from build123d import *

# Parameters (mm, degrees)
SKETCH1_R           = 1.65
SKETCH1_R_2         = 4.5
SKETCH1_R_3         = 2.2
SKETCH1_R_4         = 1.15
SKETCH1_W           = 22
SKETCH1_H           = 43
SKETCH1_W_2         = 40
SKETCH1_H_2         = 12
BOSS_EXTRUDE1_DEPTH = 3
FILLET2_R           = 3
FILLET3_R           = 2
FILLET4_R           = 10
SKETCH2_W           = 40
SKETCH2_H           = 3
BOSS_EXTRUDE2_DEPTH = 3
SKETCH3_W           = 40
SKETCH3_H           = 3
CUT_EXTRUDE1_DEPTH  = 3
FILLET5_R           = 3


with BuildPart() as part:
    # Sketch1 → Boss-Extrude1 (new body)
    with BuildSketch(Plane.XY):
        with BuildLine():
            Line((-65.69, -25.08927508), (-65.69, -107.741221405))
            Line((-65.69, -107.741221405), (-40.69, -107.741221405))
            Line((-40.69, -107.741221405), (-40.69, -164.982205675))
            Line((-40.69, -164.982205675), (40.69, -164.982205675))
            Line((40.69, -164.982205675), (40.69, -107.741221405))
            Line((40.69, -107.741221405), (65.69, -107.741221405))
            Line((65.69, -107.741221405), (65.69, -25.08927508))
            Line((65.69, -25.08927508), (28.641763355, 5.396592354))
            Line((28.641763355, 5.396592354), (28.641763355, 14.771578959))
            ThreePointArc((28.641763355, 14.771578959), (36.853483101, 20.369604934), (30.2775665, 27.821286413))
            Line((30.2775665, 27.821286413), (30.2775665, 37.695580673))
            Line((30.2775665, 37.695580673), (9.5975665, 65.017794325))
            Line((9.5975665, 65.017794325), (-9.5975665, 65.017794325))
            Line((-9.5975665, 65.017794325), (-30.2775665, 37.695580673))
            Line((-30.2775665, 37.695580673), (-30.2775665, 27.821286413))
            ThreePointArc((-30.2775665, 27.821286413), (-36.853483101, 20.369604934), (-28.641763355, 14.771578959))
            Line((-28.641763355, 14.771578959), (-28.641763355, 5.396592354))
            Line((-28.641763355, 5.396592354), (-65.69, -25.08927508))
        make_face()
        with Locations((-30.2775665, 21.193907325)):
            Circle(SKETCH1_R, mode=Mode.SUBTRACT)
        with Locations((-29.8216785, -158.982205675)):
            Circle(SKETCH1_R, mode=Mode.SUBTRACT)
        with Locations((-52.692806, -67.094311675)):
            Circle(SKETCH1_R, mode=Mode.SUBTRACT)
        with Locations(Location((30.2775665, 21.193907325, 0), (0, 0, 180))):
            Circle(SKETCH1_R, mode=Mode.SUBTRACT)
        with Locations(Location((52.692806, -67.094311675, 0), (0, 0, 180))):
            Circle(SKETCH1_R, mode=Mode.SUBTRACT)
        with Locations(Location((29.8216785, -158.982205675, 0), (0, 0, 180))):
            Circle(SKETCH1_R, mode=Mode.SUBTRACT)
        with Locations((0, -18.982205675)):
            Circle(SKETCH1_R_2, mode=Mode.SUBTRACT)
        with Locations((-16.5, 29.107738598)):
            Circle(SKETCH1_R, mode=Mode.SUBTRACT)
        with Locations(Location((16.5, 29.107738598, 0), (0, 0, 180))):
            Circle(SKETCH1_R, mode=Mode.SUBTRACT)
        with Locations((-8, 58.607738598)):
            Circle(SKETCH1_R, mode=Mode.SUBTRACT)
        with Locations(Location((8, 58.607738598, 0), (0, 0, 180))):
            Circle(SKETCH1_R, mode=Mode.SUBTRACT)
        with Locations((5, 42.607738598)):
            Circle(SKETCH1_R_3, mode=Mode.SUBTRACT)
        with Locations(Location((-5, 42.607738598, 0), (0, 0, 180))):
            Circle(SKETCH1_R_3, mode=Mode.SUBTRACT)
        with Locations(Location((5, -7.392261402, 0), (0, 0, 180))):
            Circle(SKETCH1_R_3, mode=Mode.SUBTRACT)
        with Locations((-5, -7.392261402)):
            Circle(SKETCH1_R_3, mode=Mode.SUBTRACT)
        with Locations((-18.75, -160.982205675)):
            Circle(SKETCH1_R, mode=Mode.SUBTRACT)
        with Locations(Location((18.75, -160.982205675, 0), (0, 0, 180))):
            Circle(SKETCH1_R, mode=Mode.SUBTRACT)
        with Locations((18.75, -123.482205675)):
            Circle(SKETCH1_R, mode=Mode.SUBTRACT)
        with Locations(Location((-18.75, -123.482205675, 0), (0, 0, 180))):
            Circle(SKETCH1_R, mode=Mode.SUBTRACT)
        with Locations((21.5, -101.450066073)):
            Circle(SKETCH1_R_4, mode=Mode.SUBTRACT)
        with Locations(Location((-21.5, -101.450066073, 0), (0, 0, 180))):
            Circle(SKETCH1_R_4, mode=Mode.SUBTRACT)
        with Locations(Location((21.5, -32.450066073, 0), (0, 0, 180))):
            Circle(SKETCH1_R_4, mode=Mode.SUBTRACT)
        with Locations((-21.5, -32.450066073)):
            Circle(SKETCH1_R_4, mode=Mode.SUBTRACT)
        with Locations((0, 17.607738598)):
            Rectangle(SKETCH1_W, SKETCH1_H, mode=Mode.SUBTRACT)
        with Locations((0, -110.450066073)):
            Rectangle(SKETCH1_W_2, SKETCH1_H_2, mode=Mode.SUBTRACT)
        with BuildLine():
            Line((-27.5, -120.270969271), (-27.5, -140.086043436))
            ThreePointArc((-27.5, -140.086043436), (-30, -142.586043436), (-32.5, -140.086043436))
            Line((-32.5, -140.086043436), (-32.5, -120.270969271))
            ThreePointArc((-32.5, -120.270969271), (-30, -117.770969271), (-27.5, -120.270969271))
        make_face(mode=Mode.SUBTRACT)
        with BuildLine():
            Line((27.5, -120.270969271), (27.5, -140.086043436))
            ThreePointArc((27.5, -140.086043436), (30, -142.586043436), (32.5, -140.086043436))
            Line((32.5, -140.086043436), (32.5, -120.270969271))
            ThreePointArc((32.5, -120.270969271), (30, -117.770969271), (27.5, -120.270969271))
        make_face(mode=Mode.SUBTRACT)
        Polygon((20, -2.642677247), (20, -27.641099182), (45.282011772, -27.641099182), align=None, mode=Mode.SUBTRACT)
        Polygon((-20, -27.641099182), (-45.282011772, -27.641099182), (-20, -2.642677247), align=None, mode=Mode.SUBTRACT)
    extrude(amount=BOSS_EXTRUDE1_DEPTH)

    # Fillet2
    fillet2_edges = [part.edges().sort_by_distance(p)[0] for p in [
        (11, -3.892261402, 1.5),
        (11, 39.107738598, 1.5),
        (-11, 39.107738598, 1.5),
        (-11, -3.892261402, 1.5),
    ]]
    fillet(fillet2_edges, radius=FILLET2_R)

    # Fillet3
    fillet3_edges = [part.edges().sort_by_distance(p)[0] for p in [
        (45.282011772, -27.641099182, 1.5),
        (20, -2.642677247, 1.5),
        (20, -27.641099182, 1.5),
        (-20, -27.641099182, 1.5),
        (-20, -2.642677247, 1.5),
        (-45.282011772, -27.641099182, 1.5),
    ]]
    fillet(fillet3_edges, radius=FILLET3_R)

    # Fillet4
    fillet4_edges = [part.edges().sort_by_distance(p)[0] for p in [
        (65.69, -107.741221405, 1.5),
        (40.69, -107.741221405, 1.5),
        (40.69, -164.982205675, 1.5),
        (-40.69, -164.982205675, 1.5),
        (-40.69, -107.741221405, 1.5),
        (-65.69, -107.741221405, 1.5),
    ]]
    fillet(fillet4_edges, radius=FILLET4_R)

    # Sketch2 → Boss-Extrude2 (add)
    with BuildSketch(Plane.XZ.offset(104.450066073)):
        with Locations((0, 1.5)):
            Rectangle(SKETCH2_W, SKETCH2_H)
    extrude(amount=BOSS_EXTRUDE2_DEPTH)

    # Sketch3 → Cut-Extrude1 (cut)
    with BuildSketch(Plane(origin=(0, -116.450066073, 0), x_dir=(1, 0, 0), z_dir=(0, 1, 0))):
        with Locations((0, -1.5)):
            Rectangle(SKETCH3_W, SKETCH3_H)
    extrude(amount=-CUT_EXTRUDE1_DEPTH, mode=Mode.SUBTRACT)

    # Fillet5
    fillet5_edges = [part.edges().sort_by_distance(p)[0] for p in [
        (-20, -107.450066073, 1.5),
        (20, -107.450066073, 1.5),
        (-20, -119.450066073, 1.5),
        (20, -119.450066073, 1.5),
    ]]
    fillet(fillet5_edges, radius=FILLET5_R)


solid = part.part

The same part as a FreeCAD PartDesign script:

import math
import FreeCAD as App
import Part
import Sketcher
from FreeCAD import Vector
Q = App.Units.Quantity


def edges_at(feature, points):
    """Names of the edges that pass closest to the given points."""
    edges = feature.Shape.Edges
    near = lambda p: min(range(len(edges)), key=lambda i: edges[i].distToShape(Part.Vertex(*p))[0])
    return sorted({f"Edge{near(p) + 1}" for p in points})


def add_polygon(sketch, points):
    """Adds a closed chain of lines whose ends are joined by coincident constraints."""
    first, n = sketch.GeometryCount, len(points)
    for a, b in zip(points, points[1:] + points[:1]):
        sketch.addGeometry(Part.LineSegment(App.Vector(*a, 0), App.Vector(*b, 0)), False)
    for i in range(n):
        sketch.addConstraint(Sketcher.Constraint("Coincident", first + i, 2, first + (i + 1) % n, 1))

doc = App.newDocument("Part")
body = doc.addObject("PartDesign::Body", "Body")

# Sketch on XY plane
sketch1 = body.newObject("Sketcher::SketchObject", "Sketch")
sketch1.AttachmentSupport = (doc.getObject("XY_Plane"), [""])
sketch1.MapMode = "FlatFace"
sketch1.addGeometry(Part.LineSegment(Vector(-65.7, -25.1, 0), Vector(-65.7, -107.7, 0)), False)  # 0
sketch1.addGeometry(Part.LineSegment(Vector(-65.7, -107.7, 0), Vector(-40.7, -107.7, 0)), False)  # 1
sketch1.addGeometry(Part.LineSegment(Vector(-40.7, -107.7, 0), Vector(-40.7, -165, 0)), False)  # 2
sketch1.addGeometry(Part.LineSegment(Vector(-40.7, -165, 0), Vector(40.7, -165, 0)), False)  # 3
sketch1.addGeometry(Part.LineSegment(Vector(40.7, -165, 0), Vector(40.7, -107.7, 0)), False)  # 4
sketch1.addGeometry(Part.LineSegment(Vector(40.7, -107.7, 0), Vector(65.7, -107.7, 0)), False)  # 5
sketch1.addGeometry(Part.LineSegment(Vector(65.7, -107.7, 0), Vector(65.7, -25.1, 0)), False)  # 6
sketch1.addGeometry(Part.LineSegment(Vector(65.7, -25.1, 0), Vector(28.6, 5.4, 0)), False)  # 7
sketch1.addGeometry(Part.LineSegment(Vector(28.6, 5.4, 0), Vector(28.6, 14.8, 0)), False)  # 8
sketch1.addGeometry(Part.ArcOfCircle(Part.Circle(Vector(30.3, 21.2, 0), Vector(0, 0, 1), 6.6), math.radians(-104), math.radians(90)), False)  # 9
sketch1.addGeometry(Part.LineSegment(Vector(30.3, 27.8, 0), Vector(30.3, 37.7, 0)), False)  # 10
sketch1.addGeometry(Part.LineSegment(Vector(30.3, 37.7, 0), Vector(9.6, 65, 0)), False)  # 11
sketch1.addGeometry(Part.LineSegment(Vector(9.6, 65, 0), Vector(-9.6, 65, 0)), False)  # 12
sketch1.addGeometry(Part.LineSegment(Vector(-9.6, 65, 0), Vector(-30.3, 37.7, 0)), False)  # 13
sketch1.addGeometry(Part.LineSegment(Vector(-30.3, 37.7, 0), Vector(-30.3, 27.8, 0)), False)  # 14
sketch1.addGeometry(Part.ArcOfCircle(Part.Circle(Vector(-30.3, 21.2, 0), Vector(0, 0, 1), 6.6), math.radians(90), math.radians(284)), False)  # 15
sketch1.addGeometry(Part.LineSegment(Vector(-28.6, 14.8, 0), Vector(-28.6, 5.4, 0)), False)  # 16
sketch1.addGeometry(Part.LineSegment(Vector(-28.6, 5.4, 0), Vector(-65.7, -25.1, 0)), False)  # 17
sketch1.addGeometry(Part.Circle(Vector(-29.8, -159, 0), Vector(0, 0, 1), 1.6), False)  # 18
sketch1.addGeometry(Part.ArcOfCircle(Part.Circle(Vector(-30, -120.3, 0), Vector(0, 0, 1), 2.5), math.radians(0), math.radians(180)), False)  # 19
sketch1.addGeometry(Part.LineSegment(Vector(-27.5, -120.3, 0), Vector(-27.5, -140.1, 0)), False)  # 20
sketch1.addGeometry(Part.ArcOfCircle(Part.Circle(Vector(-30, -140.1, 0), Vector(0, 0, 1), 2.5), math.radians(180), math.radians(360)), False)  # 21
sketch1.addGeometry(Part.LineSegment(Vector(-32.5, -140.1, 0), Vector(-32.5, -120.3, 0)), False)  # 22
sketch1.addGeometry(Part.Circle(Vector(-18.8, -161, 0), Vector(0, 0, 1), 1.6), False)  # 23
sketch1.addGeometry(Part.Circle(Vector(-18.8, -123.5, 0), Vector(0, 0, 1), 1.6), False)  # 24
sketch1.addGeometry(Part.Circle(Vector(-52.7, -67.1, 0), Vector(0, 0, 1), 1.6), False)  # 25
sketch1.addGeometry(Part.Circle(Vector(-21.5, -101.5, 0), Vector(0, 0, 1), 1.1), False)  # 26
sketch1.addGeometry(Part.Circle(Vector(18.8, -161, 0), Vector(0, 0, 1), 1.6), False)  # 27
add_polygon(sketch1, [(20, -116.5), (-20, -116.5), (-20, -104.5), (20, -104.5)])  # lines 28-31
sketch1.addGeometry(Part.Circle(Vector(18.8, -123.5, 0), Vector(0, 0, 1), 1.6), False)  # 32
sketch1.addGeometry(Part.Circle(Vector(29.8, -159, 0), Vector(0, 0, 1), 1.6), False)  # 33
sketch1.addGeometry(Part.LineSegment(Vector(27.5, -140.1, 0), Vector(27.5, -120.3, 0)), False)  # 34
sketch1.addGeometry(Part.ArcOfCircle(Part.Circle(Vector(30, -120.3, 0), Vector(0, 0, 1), 2.5), math.radians(0), math.radians(180)), False)  # 35
sketch1.addGeometry(Part.LineSegment(Vector(32.5, -120.3, 0), Vector(32.5, -140.1, 0)), False)  # 36
sketch1.addGeometry(Part.ArcOfCircle(Part.Circle(Vector(30, -140.1, 0), Vector(0, 0, 1), 2.5), math.radians(180), math.radians(360)), False)  # 37
sketch1.addGeometry(Part.Circle(Vector(21.5, -101.5, 0), Vector(0, 0, 1), 1.1), False)  # 38
sketch1.addGeometry(Part.Circle(Vector(52.7, -67.1, 0), Vector(0, 0, 1), 1.6), False)  # 39
add_polygon(sketch1, [(-20, -2.6), (-20, -27.6), (-45.3, -27.6)])  # lines 40-42
sketch1.addGeometry(Part.Circle(Vector(-21.5, -32.5, 0), Vector(0, 0, 1), 1.1), False)  # 43
sketch1.addGeometry(Part.Circle(Vector(-5, -7.4, 0), Vector(0, 0, 1), 2.2), False)  # 44
sketch1.addGeometry(Part.Circle(Vector(-30.3, 21.2, 0), Vector(0, 0, 1), 1.6), False)  # 45
sketch1.addGeometry(Part.Circle(Vector(-16.5, 29.1, 0), Vector(0, 0, 1), 1.6), False)  # 46
sketch1.addGeometry(Part.Circle(Vector(-5, 42.6, 0), Vector(0, 0, 1), 2.2), False)  # 47
sketch1.addGeometry(Part.Circle(Vector(-8, 58.6, 0), Vector(0, 0, 1), 1.6), False)  # 48
sketch1.addGeometry(Part.Circle(Vector(21.5, -32.5, 0), Vector(0, 0, 1), 1.1), False)  # 49
sketch1.addGeometry(Part.Circle(Vector(0, -19, 0), Vector(0, 0, 1), 4.5), False)  # 50
sketch1.addGeometry(Part.Circle(Vector(5, -7.4, 0), Vector(0, 0, 1), 2.2), False)  # 51
add_polygon(sketch1, [(20, -27.6), (20, -2.6), (45.3, -27.6)])  # lines 52-54
add_polygon(sketch1, [(11, -3.9), (-11, -3.9), (-11, 39.1), (11, 39.1)])  # lines 55-58
sketch1.addGeometry(Part.Circle(Vector(16.5, 29.1, 0), Vector(0, 0, 1), 1.6), False)  # 59
sketch1.addGeometry(Part.Circle(Vector(5, 42.6, 0), Vector(0, 0, 1), 2.2), False)  # 60
sketch1.addGeometry(Part.Circle(Vector(8, 58.6, 0), Vector(0, 0, 1), 1.6), False)  # 61
sketch1.addGeometry(Part.Circle(Vector(30.3, 21.2, 0), Vector(0, 0, 1), 1.6), False)  # 62
sketch1.addConstraint([
    Sketcher.Constraint("Coincident", 0, 2, 1, 1),
    Sketcher.Constraint("Coincident", 1, 2, 2, 1),
    Sketcher.Constraint("Coincident", 2, 2, 3, 1),
    Sketcher.Constraint("Coincident", 3, 2, 4, 1),
    Sketcher.Constraint("Coincident", 4, 2, 5, 1),
    Sketcher.Constraint("Coincident", 5, 2, 6, 1),
    Sketcher.Constraint("Coincident", 6, 2, 7, 1),
    Sketcher.Constraint("Coincident", 7, 2, 8, 1),
    Sketcher.Constraint("Coincident", 8, 2, 9, 1),
    Sketcher.Constraint("Coincident", 9, 2, 10, 1),
    Sketcher.Constraint("Coincident", 10, 2, 11, 1),
    Sketcher.Constraint("Coincident", 11, 2, 12, 1),
    Sketcher.Constraint("Coincident", 12, 2, 13, 1),
    Sketcher.Constraint("Coincident", 13, 2, 14, 1),
    Sketcher.Constraint("Coincident", 14, 2, 15, 1),
    Sketcher.Constraint("Coincident", 15, 2, 16, 1),
    Sketcher.Constraint("Coincident", 16, 2, 17, 1),
    Sketcher.Constraint("Coincident", 17, 2, 0, 1),
    Sketcher.Constraint("Tangent", 19, 1, 20, 1),
    Sketcher.Constraint("Tangent", 20, 2, 21, 2),
    Sketcher.Constraint("Tangent", 21, 1, 22, 1),
    Sketcher.Constraint("Tangent", 22, 2, 19, 2),
    Sketcher.Constraint("Tangent", 34, 2, 35, 2),
    Sketcher.Constraint("Tangent", 35, 1, 36, 1),
    Sketcher.Constraint("Tangent", 36, 2, 37, 2),
    Sketcher.Constraint("Tangent", 37, 1, 34, 1),
    Sketcher.Constraint("Vertical", 0),
    Sketcher.Constraint("Horizontal", 1),
    Sketcher.Constraint("Vertical", 2),
    Sketcher.Constraint("Horizontal", 3),
    Sketcher.Constraint("Vertical", 4),
    Sketcher.Constraint("Horizontal", 5),
    Sketcher.Constraint("Vertical", 6),
    Sketcher.Constraint("Vertical", 8),
    Sketcher.Constraint("Vertical", 10),
    Sketcher.Constraint("Horizontal", 12),
    Sketcher.Constraint("Vertical", 14),
    Sketcher.Constraint("Vertical", 16),
    Sketcher.Constraint("Vertical", 20),
    Sketcher.Constraint("Vertical", 22),
    Sketcher.Constraint("Horizontal", 28),
    Sketcher.Constraint("Vertical", 29),
    Sketcher.Constraint("Horizontal", 30),
    Sketcher.Constraint("Vertical", 31),
    Sketcher.Constraint("Vertical", 34),
    Sketcher.Constraint("Vertical", 36),
    Sketcher.Constraint("Vertical", 40),
    Sketcher.Constraint("Horizontal", 41),
    Sketcher.Constraint("Vertical", 52),
    Sketcher.Constraint("Horizontal", 54),
    Sketcher.Constraint("Horizontal", 55),
    Sketcher.Constraint("Vertical", 56),
    Sketcher.Constraint("Horizontal", 57),
    Sketcher.Constraint("Vertical", 58),
    Sketcher.Constraint("Coincident", 45, 3, 15, 3),
    Sketcher.Constraint("Coincident", 62, 3, 9, 3),
    Sketcher.Constraint("Equal", 9, 15),
    Sketcher.Constraint("Equal", 18, 23),
    Sketcher.Constraint("Equal", 23, 24),
    Sketcher.Constraint("Equal", 24, 25),
    Sketcher.Constraint("Equal", 25, 27),
    Sketcher.Constraint("Equal", 27, 32),
    Sketcher.Constraint("Equal", 32, 33),
    Sketcher.Constraint("Equal", 21, 35),
    Sketcher.Constraint("Equal", 26, 38),
    Sketcher.Constraint("Equal", 33, 39),
    Sketcher.Constraint("Equal", 38, 43),
    Sketcher.Constraint("Equal", 39, 45),
    Sketcher.Constraint("Equal", 45, 46),
    Sketcher.Constraint("Equal", 44, 47),
    Sketcher.Constraint("Equal", 46, 48),
    Sketcher.Constraint("Equal", 43, 49),
    Sketcher.Constraint("Equal", 47, 51),
    Sketcher.Constraint("Equal", 48, 59),
    Sketcher.Constraint("Equal", 51, 60),
    Sketcher.Constraint("Equal", 59, 61),
    Sketcher.Constraint("Equal", 61, 62),
    Sketcher.Constraint("Symmetric", 9, 3, 15, 3, -2),
    Sketcher.Constraint("Symmetric", 23, 3, 27, 3, -2),
    Sketcher.Constraint("Symmetric", 24, 3, 32, 3, -2),
    Sketcher.Constraint("Symmetric", 18, 3, 33, 3, -2),
    Sketcher.Constraint("Symmetric", 19, 3, 35, 3, -2),
    Sketcher.Constraint("Symmetric", 26, 3, 38, 3, -2),
    Sketcher.Constraint("Symmetric", 25, 3, 39, 3, -2),
    Sketcher.Constraint("Symmetric", 43, 3, 49, 3, -2),
    Sketcher.Constraint("Symmetric", 44, 3, 51, 3, -2),
    Sketcher.Constraint("Symmetric", 46, 3, 59, 3, -2),
    Sketcher.Constraint("Symmetric", 47, 3, 60, 3, -2),
    Sketcher.Constraint("Symmetric", 48, 3, 61, 3, -2),
    Sketcher.Constraint("Symmetric", 1, 2, 4, 2, -2),
    Sketcher.Constraint("Symmetric", 10, 2, 13, 2, -2),
    Sketcher.Constraint("Symmetric", 7, 2, 16, 2, -2),
    Sketcher.Constraint("Symmetric", 6, 2, 17, 2, -2),
    Sketcher.Constraint("Symmetric", 42, 2, 52, 2, -2),
    Sketcher.Constraint("Symmetric", 41, 2, 53, 2, -2),
    Sketcher.Constraint("PointOnObject", 50, 3, -2),
    Sketcher.Constraint("Horizontal", 21, 3, 37, 3),
    Sketcher.Constraint("Vertical", 23, 3, 24, 3),
    Sketcher.Constraint("Vertical", 26, 3, 43, 3),
    Sketcher.Constraint("Vertical", 44, 3, 47, 3),
    Sketcher.Constraint("Vertical", 62, 3, 9, 2),
    Sketcher.Constraint("Vertical", 29, 2, 40, 2),
    Sketcher.Constraint("Vertical", 31, 2, 52, 2),
    Sketcher.Constraint("Equal", 11, 13),
    Sketcher.Constraint("Diameter", 50, Q("9 mm")),
    Sketcher.Constraint("Diameter", 18, Q("3.3 mm")),
    Sketcher.Constraint("Diameter", 26, Q("2.3 mm")),
    Sketcher.Constraint("Diameter", 44, Q("4.4 mm")),
    Sketcher.Constraint("Radius", 19, Q("2.5 mm")),
    Sketcher.Constraint("DistanceX", 1, 1, 1, 2, Q("25 mm")),
    Sketcher.Constraint("DistanceX", 28, 2, 28, 1, Q("40 mm")),
    Sketcher.Constraint("DistanceX", 55, 2, 55, 1, Q("22 mm")),
    Sketcher.Constraint("DistanceY", 29, 1, 29, 2, Q("12 mm")),
    Sketcher.Constraint("DistanceY", 56, 1, 56, 2, Q("43 mm")),
    Sketcher.Constraint("DistanceX", 19, 3, -1, 1, Q("30 mm")),
    Sketcher.Constraint("DistanceX", 44, 3, -1, 1, Q("5 mm")),
    Sketcher.Constraint("DistanceX", 48, 3, -1, 1, Q("8 mm")),
    Sketcher.Constraint("DistanceX", 55, 2, -1, 1, Q("11 mm")),
    Sketcher.Constraint("DistanceX", 3, 1, 3, 2, Q("81.38 mm")),
    Sketcher.Constraint("DistanceX", 26, 3, -1, 1, Q("21.5 mm")),
    Sketcher.Constraint("DistanceX", 46, 3, -1, 1, Q("16.5 mm")),
    Sketcher.Constraint("DistanceX", 23, 3, -1, 1, Q("18.75 mm")),
    Sketcher.Constraint("Radius", 9, Q("6.627379 mm")),
    Sketcher.Constraint("Distance", 42, Q("35.554201 mm")),
    Sketcher.Constraint("DistanceX", 41, 2, 41, 1, Q("25.282012 mm")),
    Sketcher.Constraint("DistanceY", 40, 2, -1, 1, Q("27.641099 mm")),
    Sketcher.Constraint("DistanceX", 12, 2, 12, 1, Q("19.195133 mm")),
    Sketcher.Constraint("DistanceY", 0, 2, 0, 1, Q("82.651946 mm")),
    Sketcher.Constraint("DistanceY", 2, 2, 2, 1, Q("57.240984 mm")),
    Sketcher.Constraint("DistanceY", 8, 1, 8, 2, Q("9.374987 mm")),
    Sketcher.Constraint("DistanceY", 10, 1, 10, 2, Q("9.874294 mm")),
    Sketcher.Constraint("DistanceY", 20, 2, 20, 1, Q("19.815074 mm")),
    Sketcher.Constraint("DistanceX", 18, 3, -1, 1, Q("29.821679 mm")),
    Sketcher.Constraint("DistanceY", 19, 3, -1, 1, Q("120.270969 mm")),
    Sketcher.Constraint("DistanceY", 25, 3, -1, 1, Q("67.094312 mm")),
    Sketcher.Constraint("DistanceY", 44, 3, -1, 1, Q("7.392261 mm")),
    Sketcher.Constraint("DistanceY", -1, 1, 46, 3, Q("29.107739 mm")),
    Sketcher.Constraint("DistanceY", -1, 1, 47, 3, Q("42.607739 mm")),
    Sketcher.Constraint("DistanceY", -1, 1, 48, 3, Q("58.607739 mm")),
    Sketcher.Constraint("DistanceY", 0, 2, -1, 1, Q("107.741221 mm")),
    Sketcher.Constraint("DistanceY", -1, 1, 8, 2, Q("14.771579 mm")),
    Sketcher.Constraint("DistanceY", -1, 1, 10, 2, Q("37.695581 mm")),
    Sketcher.Constraint("DistanceY", 55, 2, -1, 1, Q("3.892261 mm")),
    Sketcher.Constraint("Distance", 7, Q("47.978745 mm")),
    Sketcher.Constraint("Distance", 11, Q("34.266102 mm")),
    Sketcher.Constraint("DistanceY", 18, 3, -1, 1, Q("158.982206 mm")),
    Sketcher.Constraint("DistanceY", 23, 3, -1, 1, Q("160.982206 mm")),
    Sketcher.Constraint("DistanceY", 24, 3, -1, 1, Q("123.482206 mm")),
    Sketcher.Constraint("DistanceX", 25, 3, -1, 1, Q("52.692806 mm")),
    Sketcher.Constraint("DistanceY", 26, 3, -1, 1, Q("101.450066 mm")),
    Sketcher.Constraint("DistanceY", 43, 3, -1, 1, Q("32.450066 mm")),
    Sketcher.Constraint("DistanceY", 50, 3, -1, 1, Q("18.982206 mm")),
    Sketcher.Constraint("DistanceY", 28, 2, -1, 1, Q("116.450066 mm")),
])
pad1 = body.newObject("PartDesign::Pad", "Pad")
pad1.Profile = sketch1
pad1.Length = 3
doc.recompute()

fillet = body.newObject("PartDesign::Fillet", "Fillet")
fillet.Base = (pad1, edges_at(pad1, [
    (11, -3.892, 1.5),
    (11, 39.108, 1.5),
    (-11, 39.108, 1.5),
    (-11, -3.892, 1.5),
]))
fillet.Radius = 3
doc.recompute()

fillet2 = body.newObject("PartDesign::Fillet", "Fillet001")
fillet2.Base = (fillet, edges_at(fillet, [
    (45.282, -27.641, 1.5),
    (20, -2.643, 1.5),
    (20, -27.641, 1.5),
    (-20, -27.641, 1.5),
    (-20, -2.643, 1.5),
    (-45.282, -27.641, 1.5),
]))
fillet2.Radius = 2
doc.recompute()

fillet3 = body.newObject("PartDesign::Fillet", "Fillet002")
fillet3.Base = (fillet2, edges_at(fillet2, [
    (65.69, -107.741, 1.5),
    (40.69, -107.741, 1.5),
    (40.69, -164.982, 1.5),
    (-40.69, -164.982, 1.5),
    (-40.69, -107.741, 1.5),
    (-65.69, -107.741, 1.5),
]))
fillet3.Radius = 10

# Sketch on XZ plane
sketch2 = body.newObject("Sketcher::SketchObject", "Sketch001")
sketch2.AttachmentSupport = (doc.getObject("XZ_Plane"), [""])
sketch2.MapMode = "FlatFace"
sketch2.AttachmentOffset = App.Placement(Vector(0, 0, 104.450066), App.Rotation())
add_polygon(sketch2, [(-20, 3), (-20, 0), (20, 0), (20, 3)])  # lines 0-3
sketch2.addConstraint([
    Sketcher.Constraint("Vertical", 0),
    Sketcher.Constraint("Horizontal", 1),
    Sketcher.Constraint("Vertical", 2),
    Sketcher.Constraint("Horizontal", 3),
    Sketcher.Constraint("Symmetric", 0, 2, 1, 2, -1, 1),
    Sketcher.Constraint("DistanceX", 1, 1, 1, 2, Q("40 mm")),
    Sketcher.Constraint("DistanceY", 0, 2, 0, 1, Q("3 mm")),
])
pad2 = body.newObject("PartDesign::Pad", "Pad001")
pad2.Profile = sketch2
pad2.Length = 3

# Sketch on XZ plane
sketch3 = body.newObject("Sketcher::SketchObject", "Sketch002")
sketch3.AttachmentSupport = (doc.getObject("XZ_Plane"), [""])
sketch3.MapMode = "FlatFace"
sketch3.AttachmentOffset = App.Placement(Vector(0, 0, 116.450066), App.Rotation())
add_polygon(sketch3, [(-20, 0), (-20, 3), (20, 3), (20, 0)])  # lines 0-3
sketch3.addConstraint([
    Sketcher.Constraint("Vertical", 0),
    Sketcher.Constraint("Horizontal", 1),
    Sketcher.Constraint("Vertical", 2),
    Sketcher.Constraint("Horizontal", 3),
    Sketcher.Constraint("Symmetric", 2, 2, 3, 2, -1, 1),
    Sketcher.Constraint("DistanceX", 1, 1, 1, 2, Q("40 mm")),
    Sketcher.Constraint("DistanceY", 0, 1, 0, 2, Q("3 mm")),
])
pocket1 = body.newObject("PartDesign::Pocket", "Pocket")
pocket1.Profile = sketch3
pocket1.Length = 3
pocket1.Reversed = True
doc.recompute()

fillet4 = body.newObject("PartDesign::Fillet", "Fillet003")
fillet4.Base = (pocket1, edges_at(pocket1, [
    (-20, -107.45, 1.5),
    (20, -107.45, 1.5),
    (-20, -119.45, 1.5),
    (20, -119.45, 1.5),
]))
fillet4.Radius = 3

doc.recompute()
